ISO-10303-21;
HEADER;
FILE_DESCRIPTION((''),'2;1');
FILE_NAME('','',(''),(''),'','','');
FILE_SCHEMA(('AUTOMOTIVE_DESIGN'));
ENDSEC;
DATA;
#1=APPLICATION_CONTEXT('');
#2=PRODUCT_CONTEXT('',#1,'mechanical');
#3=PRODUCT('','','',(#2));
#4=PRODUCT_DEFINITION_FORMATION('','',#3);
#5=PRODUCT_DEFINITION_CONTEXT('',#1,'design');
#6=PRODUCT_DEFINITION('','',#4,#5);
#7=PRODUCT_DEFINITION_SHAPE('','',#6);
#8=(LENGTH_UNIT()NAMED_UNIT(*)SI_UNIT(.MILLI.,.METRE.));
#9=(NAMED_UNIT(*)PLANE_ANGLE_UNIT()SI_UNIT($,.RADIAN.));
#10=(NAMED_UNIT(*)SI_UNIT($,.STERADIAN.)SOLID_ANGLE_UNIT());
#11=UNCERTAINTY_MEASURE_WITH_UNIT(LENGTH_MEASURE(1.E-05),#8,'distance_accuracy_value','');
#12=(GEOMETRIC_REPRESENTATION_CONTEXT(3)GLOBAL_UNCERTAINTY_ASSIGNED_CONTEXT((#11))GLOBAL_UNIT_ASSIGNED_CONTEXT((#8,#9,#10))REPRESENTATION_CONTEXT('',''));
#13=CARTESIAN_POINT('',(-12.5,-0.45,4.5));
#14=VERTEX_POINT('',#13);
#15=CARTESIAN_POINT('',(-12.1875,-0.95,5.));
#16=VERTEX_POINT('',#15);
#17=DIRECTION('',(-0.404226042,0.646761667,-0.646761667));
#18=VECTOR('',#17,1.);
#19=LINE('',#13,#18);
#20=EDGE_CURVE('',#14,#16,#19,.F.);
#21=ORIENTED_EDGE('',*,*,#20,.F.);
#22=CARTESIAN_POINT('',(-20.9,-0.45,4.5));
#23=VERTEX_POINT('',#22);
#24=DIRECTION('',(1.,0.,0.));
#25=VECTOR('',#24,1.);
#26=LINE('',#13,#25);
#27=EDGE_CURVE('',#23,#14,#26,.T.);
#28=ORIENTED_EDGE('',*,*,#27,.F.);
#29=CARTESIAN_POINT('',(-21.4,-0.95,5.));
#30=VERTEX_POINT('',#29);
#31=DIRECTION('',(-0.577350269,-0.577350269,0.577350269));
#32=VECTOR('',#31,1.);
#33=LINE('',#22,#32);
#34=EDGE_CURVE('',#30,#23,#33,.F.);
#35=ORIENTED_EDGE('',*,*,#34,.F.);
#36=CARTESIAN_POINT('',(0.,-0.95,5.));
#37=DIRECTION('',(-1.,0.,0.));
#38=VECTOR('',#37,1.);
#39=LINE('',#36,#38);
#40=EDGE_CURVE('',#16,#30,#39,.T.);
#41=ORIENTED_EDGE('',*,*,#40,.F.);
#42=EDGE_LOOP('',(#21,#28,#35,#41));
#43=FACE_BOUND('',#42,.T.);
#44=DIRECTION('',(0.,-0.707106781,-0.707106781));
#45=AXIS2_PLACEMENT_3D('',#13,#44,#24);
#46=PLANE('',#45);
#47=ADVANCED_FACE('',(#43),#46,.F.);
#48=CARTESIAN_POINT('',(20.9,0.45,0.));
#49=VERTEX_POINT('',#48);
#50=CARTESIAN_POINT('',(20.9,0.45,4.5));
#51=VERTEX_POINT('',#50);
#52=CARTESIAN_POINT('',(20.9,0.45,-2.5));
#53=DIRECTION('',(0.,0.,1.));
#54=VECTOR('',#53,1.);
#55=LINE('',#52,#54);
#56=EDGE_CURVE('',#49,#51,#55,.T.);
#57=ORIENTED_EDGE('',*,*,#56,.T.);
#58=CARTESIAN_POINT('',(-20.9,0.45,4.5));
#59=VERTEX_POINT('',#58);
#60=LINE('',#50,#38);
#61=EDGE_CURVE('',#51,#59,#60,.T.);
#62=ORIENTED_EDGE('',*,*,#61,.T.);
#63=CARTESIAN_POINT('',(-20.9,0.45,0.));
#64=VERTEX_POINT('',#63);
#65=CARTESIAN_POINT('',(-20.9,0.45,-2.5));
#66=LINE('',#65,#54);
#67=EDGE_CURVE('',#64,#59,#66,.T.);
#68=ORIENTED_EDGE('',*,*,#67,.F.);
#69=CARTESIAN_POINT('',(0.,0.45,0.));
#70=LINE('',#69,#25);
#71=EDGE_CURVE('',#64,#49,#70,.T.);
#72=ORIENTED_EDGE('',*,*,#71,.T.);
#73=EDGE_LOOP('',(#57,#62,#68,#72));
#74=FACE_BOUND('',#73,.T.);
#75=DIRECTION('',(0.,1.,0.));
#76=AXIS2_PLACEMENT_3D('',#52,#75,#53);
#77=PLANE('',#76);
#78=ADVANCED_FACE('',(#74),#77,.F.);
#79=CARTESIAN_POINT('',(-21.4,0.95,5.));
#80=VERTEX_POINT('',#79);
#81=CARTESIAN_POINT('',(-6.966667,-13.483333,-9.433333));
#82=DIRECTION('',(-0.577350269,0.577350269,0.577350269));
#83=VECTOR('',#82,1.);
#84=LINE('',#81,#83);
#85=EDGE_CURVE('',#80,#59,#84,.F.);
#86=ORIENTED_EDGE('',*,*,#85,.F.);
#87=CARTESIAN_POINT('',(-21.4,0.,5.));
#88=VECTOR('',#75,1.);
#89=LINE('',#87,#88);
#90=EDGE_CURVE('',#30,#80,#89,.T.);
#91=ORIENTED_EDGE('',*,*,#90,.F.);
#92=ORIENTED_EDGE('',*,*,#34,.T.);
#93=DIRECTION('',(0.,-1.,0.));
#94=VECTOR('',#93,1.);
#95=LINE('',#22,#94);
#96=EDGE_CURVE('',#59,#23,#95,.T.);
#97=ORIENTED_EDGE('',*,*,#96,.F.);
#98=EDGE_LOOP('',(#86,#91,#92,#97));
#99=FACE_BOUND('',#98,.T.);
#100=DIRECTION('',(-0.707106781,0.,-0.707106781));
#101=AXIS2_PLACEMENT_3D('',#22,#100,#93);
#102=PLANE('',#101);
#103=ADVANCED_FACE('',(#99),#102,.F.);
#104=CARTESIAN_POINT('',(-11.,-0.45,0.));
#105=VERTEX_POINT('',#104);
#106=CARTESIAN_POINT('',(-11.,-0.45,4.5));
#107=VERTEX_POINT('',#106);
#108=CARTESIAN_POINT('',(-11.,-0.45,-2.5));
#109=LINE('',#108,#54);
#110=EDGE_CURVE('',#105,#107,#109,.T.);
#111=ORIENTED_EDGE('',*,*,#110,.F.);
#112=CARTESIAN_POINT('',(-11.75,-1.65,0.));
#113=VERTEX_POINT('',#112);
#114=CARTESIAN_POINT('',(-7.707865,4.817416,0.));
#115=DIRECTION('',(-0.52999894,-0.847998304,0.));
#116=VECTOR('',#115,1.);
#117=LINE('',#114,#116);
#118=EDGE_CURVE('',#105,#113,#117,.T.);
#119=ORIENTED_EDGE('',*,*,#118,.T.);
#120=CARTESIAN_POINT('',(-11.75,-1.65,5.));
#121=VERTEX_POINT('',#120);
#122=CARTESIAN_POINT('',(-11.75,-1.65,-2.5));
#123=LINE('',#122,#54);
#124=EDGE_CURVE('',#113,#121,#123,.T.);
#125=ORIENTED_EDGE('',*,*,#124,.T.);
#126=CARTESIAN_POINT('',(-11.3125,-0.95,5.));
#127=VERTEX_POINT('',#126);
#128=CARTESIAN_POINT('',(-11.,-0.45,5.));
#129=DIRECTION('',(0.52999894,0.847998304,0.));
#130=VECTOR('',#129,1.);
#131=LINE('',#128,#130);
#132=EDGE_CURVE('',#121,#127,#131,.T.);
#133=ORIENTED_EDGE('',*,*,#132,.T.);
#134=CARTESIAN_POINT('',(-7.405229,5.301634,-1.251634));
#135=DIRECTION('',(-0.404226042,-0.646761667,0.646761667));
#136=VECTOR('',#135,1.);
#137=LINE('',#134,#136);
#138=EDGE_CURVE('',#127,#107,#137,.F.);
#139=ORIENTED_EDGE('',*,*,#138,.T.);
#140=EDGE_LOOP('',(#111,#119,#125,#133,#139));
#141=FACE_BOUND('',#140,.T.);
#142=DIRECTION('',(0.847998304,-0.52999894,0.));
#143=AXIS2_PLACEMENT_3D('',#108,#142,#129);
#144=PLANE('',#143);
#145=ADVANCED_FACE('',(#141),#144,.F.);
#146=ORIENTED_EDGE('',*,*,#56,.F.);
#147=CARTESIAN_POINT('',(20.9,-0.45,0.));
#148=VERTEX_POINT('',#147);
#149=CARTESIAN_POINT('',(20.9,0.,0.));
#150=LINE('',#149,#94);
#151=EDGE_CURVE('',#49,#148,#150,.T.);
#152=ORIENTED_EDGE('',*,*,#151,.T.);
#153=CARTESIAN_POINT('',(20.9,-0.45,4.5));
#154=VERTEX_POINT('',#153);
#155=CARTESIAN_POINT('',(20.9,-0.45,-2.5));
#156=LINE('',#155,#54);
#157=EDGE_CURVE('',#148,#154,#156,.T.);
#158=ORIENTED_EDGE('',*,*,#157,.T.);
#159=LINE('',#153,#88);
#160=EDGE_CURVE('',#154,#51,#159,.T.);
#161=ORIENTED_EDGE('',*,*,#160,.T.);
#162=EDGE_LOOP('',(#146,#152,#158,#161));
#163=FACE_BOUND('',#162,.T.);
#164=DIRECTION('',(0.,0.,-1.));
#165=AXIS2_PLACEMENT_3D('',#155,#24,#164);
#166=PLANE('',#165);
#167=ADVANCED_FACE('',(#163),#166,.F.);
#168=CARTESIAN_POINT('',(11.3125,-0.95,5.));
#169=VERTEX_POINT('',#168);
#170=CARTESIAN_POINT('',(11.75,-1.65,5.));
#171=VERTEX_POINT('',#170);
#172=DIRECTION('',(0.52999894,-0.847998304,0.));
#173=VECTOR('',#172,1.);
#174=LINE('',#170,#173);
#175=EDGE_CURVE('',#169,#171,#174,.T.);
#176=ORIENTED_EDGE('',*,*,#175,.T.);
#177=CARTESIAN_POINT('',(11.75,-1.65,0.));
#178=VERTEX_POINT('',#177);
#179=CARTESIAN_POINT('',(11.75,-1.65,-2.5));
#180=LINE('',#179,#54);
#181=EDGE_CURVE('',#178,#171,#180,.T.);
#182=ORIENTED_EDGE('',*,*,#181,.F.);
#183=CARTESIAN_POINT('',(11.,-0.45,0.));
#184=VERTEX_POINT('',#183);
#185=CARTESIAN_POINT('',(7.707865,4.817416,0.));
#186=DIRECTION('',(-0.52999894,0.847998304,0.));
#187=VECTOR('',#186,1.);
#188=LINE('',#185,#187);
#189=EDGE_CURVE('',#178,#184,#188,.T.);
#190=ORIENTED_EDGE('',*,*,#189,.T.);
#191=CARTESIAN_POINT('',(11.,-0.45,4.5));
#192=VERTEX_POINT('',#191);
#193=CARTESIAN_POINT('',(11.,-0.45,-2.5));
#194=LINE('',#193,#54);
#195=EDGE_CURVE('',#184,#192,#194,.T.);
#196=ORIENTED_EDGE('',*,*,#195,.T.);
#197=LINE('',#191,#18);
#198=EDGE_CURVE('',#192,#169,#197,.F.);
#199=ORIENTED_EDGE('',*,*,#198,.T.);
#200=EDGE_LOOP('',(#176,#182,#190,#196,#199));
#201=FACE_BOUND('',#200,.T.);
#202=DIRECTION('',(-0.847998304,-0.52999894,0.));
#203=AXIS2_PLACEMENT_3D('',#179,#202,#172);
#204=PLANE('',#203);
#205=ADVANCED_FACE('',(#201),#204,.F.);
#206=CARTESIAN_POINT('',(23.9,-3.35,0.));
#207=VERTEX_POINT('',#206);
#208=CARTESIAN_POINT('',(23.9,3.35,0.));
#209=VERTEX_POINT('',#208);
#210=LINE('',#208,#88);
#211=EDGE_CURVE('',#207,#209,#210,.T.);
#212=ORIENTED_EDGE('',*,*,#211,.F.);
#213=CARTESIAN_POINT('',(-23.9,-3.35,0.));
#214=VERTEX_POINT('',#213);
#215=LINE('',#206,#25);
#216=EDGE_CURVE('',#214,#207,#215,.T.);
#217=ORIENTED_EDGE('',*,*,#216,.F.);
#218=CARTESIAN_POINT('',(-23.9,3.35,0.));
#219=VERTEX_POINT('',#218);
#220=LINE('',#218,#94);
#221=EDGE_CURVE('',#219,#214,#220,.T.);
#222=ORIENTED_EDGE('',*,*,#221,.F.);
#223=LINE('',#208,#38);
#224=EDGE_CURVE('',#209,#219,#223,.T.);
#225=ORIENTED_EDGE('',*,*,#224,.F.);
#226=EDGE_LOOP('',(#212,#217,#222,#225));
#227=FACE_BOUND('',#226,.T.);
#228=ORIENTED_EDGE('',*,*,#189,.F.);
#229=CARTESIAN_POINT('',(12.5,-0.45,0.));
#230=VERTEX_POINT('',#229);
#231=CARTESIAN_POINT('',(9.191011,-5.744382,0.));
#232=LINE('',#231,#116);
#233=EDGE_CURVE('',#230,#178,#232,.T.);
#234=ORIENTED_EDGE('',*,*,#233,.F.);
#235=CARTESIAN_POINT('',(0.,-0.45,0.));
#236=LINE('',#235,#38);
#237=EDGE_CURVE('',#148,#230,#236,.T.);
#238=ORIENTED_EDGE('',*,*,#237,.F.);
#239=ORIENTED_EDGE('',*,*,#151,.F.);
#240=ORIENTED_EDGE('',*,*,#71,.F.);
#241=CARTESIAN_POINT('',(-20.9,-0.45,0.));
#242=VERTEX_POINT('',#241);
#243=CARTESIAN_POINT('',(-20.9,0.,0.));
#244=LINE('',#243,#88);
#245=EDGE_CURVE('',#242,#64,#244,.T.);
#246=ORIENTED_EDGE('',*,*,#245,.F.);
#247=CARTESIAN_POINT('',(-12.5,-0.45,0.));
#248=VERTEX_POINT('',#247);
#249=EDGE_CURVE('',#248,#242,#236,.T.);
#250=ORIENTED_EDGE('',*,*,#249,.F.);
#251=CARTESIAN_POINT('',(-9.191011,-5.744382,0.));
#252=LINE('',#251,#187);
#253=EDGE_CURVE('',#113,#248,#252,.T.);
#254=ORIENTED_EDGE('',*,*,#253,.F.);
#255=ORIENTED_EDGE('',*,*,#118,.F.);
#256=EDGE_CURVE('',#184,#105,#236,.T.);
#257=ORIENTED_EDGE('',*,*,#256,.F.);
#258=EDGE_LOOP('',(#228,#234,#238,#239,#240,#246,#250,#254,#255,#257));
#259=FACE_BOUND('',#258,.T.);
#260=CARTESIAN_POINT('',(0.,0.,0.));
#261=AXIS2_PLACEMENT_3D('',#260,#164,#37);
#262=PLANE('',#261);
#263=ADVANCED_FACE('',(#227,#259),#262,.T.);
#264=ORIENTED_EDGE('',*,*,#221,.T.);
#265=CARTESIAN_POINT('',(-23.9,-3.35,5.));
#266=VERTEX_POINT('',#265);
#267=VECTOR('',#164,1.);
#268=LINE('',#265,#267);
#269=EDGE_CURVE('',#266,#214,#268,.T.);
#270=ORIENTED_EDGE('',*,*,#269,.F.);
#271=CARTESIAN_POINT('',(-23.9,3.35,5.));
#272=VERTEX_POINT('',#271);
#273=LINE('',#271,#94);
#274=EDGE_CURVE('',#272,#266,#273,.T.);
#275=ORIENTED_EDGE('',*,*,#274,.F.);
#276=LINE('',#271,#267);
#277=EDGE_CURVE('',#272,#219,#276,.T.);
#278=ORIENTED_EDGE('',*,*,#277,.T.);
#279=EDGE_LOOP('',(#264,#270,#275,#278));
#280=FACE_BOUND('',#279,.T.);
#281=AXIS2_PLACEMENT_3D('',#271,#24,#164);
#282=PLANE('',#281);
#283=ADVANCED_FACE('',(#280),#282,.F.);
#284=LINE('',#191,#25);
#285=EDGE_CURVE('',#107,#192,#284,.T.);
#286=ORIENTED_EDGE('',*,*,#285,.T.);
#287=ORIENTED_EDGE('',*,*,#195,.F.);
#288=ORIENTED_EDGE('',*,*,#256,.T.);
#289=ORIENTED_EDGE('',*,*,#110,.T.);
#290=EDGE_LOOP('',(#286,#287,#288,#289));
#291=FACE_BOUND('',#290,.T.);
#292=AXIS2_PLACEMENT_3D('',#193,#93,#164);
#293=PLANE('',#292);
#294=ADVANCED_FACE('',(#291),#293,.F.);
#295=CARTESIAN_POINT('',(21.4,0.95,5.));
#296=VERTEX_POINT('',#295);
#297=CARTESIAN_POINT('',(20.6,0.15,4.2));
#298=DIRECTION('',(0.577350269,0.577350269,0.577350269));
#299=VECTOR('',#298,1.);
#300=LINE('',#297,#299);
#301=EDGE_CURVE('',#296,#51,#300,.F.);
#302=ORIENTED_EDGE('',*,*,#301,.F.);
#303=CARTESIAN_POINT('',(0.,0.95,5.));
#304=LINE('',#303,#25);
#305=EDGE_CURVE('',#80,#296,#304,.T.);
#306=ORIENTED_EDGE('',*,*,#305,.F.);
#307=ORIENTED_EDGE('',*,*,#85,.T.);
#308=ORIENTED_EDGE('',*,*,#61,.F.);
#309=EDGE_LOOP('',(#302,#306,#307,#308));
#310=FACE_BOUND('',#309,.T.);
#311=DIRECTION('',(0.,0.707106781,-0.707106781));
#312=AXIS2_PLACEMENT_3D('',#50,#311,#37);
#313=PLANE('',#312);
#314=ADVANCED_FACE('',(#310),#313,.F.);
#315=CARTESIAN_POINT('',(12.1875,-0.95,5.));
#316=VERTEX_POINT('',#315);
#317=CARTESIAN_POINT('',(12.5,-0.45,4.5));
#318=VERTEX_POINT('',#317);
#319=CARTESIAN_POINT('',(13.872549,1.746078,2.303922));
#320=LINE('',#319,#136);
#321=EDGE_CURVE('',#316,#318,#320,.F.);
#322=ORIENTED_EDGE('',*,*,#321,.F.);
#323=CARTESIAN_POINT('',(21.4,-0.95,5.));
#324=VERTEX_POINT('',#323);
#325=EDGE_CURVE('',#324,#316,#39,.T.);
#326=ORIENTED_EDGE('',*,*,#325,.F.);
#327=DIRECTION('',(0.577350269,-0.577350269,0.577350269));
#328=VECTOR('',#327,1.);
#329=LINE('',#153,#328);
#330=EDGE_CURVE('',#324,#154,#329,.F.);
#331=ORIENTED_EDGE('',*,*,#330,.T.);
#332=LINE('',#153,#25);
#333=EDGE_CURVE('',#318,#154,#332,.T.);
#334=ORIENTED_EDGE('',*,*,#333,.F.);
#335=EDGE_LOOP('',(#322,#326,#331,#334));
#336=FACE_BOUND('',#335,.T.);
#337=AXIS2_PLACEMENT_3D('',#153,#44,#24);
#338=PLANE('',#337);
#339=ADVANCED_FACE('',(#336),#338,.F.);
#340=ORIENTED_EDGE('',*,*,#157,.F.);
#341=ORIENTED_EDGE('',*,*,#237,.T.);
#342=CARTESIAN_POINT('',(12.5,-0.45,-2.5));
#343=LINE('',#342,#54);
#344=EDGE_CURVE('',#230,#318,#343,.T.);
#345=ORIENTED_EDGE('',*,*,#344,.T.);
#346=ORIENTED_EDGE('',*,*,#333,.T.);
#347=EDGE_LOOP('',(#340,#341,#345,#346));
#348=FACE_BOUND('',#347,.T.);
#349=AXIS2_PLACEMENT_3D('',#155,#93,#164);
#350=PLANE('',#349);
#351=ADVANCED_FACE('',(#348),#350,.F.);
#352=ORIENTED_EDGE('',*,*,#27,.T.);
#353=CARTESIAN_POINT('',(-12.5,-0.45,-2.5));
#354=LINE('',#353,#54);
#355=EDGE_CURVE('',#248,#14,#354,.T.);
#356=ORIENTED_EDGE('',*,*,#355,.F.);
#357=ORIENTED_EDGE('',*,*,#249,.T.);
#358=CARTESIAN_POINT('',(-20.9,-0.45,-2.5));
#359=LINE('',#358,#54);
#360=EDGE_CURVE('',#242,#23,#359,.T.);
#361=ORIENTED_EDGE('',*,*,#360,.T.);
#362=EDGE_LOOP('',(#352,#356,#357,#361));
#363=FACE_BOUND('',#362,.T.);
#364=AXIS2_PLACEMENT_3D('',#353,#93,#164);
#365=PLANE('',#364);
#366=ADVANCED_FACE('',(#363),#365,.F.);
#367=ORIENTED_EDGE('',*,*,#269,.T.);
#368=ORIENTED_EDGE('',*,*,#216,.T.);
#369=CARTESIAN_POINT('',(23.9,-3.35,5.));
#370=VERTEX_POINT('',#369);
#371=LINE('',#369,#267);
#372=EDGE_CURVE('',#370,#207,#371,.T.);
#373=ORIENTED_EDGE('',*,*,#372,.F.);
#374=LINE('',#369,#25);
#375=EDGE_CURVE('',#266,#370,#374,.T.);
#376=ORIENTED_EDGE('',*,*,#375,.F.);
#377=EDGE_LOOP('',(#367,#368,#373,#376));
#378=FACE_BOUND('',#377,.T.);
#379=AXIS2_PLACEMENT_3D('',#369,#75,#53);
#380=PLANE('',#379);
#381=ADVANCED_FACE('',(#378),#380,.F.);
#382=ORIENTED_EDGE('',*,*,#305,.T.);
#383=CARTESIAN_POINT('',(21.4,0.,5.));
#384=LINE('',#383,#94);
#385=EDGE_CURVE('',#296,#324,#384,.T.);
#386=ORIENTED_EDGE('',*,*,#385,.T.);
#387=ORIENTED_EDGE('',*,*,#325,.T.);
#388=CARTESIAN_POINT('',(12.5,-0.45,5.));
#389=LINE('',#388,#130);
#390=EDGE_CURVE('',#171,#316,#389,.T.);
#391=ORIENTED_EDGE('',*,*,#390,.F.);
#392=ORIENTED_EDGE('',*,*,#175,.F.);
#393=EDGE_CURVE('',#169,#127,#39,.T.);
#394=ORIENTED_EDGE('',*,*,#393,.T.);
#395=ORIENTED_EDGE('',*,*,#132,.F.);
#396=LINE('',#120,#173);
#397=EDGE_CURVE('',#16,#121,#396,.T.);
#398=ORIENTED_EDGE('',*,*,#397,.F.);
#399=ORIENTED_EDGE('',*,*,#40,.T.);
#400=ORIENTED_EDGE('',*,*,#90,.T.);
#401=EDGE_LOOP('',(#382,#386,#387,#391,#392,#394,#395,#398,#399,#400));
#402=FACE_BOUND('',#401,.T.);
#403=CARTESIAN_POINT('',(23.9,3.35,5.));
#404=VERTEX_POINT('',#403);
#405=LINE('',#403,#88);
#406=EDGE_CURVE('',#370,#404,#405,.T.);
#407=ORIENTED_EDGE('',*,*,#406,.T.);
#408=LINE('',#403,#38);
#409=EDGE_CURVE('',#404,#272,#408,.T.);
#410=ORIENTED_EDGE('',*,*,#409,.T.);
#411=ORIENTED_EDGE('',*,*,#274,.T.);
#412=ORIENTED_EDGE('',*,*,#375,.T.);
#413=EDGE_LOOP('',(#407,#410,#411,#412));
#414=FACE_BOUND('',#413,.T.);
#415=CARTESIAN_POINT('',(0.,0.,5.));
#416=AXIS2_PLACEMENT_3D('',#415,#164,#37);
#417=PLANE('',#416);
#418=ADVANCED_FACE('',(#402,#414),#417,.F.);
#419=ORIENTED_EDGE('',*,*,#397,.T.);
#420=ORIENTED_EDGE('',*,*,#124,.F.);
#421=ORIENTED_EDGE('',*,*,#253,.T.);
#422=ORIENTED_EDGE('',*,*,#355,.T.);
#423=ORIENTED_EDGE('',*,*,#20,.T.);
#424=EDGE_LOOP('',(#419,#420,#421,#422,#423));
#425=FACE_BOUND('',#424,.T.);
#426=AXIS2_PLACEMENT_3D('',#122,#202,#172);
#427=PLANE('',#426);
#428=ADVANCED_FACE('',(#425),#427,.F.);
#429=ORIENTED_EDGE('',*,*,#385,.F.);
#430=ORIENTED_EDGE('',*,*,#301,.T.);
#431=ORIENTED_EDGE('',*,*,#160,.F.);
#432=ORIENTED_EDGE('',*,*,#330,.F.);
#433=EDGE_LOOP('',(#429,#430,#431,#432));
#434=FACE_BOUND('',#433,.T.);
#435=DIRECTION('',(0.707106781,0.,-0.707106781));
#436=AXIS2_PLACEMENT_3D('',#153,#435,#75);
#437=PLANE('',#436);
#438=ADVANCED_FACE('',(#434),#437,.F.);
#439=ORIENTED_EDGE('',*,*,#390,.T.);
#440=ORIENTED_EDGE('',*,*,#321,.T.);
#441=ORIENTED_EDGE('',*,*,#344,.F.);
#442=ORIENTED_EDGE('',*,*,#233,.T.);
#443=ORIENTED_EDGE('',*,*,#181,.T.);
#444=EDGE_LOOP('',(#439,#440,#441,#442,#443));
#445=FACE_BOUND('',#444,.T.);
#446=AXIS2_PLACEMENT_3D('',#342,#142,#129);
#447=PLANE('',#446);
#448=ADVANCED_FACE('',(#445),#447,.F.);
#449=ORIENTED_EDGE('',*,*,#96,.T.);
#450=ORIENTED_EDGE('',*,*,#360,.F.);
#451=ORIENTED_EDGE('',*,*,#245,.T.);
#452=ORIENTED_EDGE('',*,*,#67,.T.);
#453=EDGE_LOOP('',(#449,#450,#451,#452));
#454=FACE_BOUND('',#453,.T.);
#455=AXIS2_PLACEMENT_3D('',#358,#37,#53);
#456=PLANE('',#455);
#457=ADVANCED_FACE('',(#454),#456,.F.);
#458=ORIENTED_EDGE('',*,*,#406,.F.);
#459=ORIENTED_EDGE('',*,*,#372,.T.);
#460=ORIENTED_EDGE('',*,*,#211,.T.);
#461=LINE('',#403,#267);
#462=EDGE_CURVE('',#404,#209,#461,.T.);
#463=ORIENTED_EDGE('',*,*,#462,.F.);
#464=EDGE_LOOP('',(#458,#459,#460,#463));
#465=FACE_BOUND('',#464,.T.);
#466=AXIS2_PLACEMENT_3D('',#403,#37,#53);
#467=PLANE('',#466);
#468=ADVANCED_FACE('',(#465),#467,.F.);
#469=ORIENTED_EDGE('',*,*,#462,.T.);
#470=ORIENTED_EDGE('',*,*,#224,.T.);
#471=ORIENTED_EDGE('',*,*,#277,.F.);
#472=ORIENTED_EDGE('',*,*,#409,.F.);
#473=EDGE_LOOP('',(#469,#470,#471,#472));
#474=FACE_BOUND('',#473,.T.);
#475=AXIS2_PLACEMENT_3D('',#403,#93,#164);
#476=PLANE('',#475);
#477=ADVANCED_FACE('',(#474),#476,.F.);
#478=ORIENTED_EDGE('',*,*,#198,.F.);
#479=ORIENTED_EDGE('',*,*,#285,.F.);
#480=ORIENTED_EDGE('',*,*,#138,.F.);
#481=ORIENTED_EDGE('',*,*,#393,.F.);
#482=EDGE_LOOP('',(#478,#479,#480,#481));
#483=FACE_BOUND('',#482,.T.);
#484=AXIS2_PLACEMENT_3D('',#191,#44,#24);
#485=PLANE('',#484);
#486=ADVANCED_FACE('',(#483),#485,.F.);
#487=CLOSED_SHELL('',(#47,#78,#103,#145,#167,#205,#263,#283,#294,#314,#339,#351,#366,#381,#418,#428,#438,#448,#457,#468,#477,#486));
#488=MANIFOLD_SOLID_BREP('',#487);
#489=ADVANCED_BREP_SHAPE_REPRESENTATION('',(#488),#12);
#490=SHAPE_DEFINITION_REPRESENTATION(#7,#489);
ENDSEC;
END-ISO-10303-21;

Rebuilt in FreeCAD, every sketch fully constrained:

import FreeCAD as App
import Part
import Sketcher

V = App.Vector
Q = App.Units.Quantity


def edges_at(feature, points):
    """Names of the edges that pass closest to the given points."""
    edges = feature.Shape.Edges
    near = lambda p: min(range(len(edges)), key=lambda i: edges[i].distToShape(Part.Vertex(*p))[0])
    return sorted({f"Edge{near(p) + 1}" for p in points})


def add_polygon(sketch, points):
    """Adds a closed chain of lines whose ends are joined by coincident constraints."""
    first, n = sketch.GeometryCount, len(points)
    for a, b in zip(points, points[1:] + points[:1]):
        sketch.addGeometry(Part.LineSegment(App.Vector(*a, 0), App.Vector(*b, 0)), False)
    for i in range(n):
        sketch.addConstraint(Sketcher.Constraint("Coincident", first + i, 2, first + (i + 1) % n, 1))

doc = App.newDocument("Part")
body = doc.addObject("PartDesign::Body", "Body")

# Sketch on XY plane
sketch1 = body.newObject("Sketcher::SketchObject", "Sketch")
sketch1.AttachmentSupport = (doc.getObject("XY_Plane"), [""])
sketch1.MapMode = "FlatFace"
add_polygon(sketch1, [(23.9, -3.35), (23.9, 3.35), (-23.9, 3.35), (-23.9, -3.35)])  # lines 0-3
sketch1.addConstraint([
    Sketcher.Constraint("Vertical", 0),
    Sketcher.Constraint("Horizontal", 1),
    Sketcher.Constraint("Vertical", 2),
    Sketcher.Constraint("Horizontal", 3),
    Sketcher.Constraint("Symmetric", 0, 2, 2, 2, -1, 1),
    Sketcher.Constraint("DistanceX", 1, 2, 1, 1, Q("47.8 mm")),
    Sketcher.Constraint("DistanceY", 0, 1, 0, 2, Q("6.7 mm")),
])
pad1 = body.newObject("PartDesign::Pad", "Pad")
pad1.Profile = sketch1
pad1.Length = 5

# Sketch on XY plane
sketch2 = body.newObject("Sketcher::SketchObject", "Sketch001")
sketch2.AttachmentSupport = (doc.getObject("XY_Plane"), [""])
sketch2.MapMode = "FlatFace"
sketch2.AttachmentOffset = App.Placement(V(0, 0, 5), App.Rotation())
add_polygon(sketch2, [(12.5, -0.45), (20.9, -0.45), (20.9, 0.45), (-20.9, 0.45), (-20.9, -0.45), (-12.5, -0.45), (-11.75, -1.65), (-11, -0.45), (11, -0.45), (11.75, -1.65)])  # lines 0-9
sketch2.addConstraint([
    Sketcher.Constraint("Horizontal", 0),
    Sketcher.Constraint("Vertical", 1),
    Sketcher.Constraint("Horizontal", 2),
    Sketcher.Constraint("Vertical", 3),
    Sketcher.Constraint("Horizontal", 4),
    Sketcher.Constraint("Horizontal", 7),
    Sketcher.Constraint("Symmetric", 0, 2, 2, 2, -1, 1),
    Sketcher.Constraint("Symmetric", 5, 2, 8, 2, -2),
    Sketcher.Constraint("Symmetric", 4, 2, 9, 2, -2),
    Sketcher.Constraint("Parallel", 5, 8),
    Sketcher.Constraint("Parallel", 6, 9),
    Sketcher.Constraint("Horizontal", 4, 2, 6, 2),
    Sketcher.Constraint("DistanceX", 7, 1, 7, 2, Q("22 mm")),
    Sketcher.Constraint("DistanceX", 0, 1, 0, 2, Q("8.4 mm")),
    Sketcher.Constraint("DistanceX", 2, 2, 2, 1, Q("41.8 mm")),
    Sketcher.Constraint("DistanceY", 1, 1, 1, 2, Q("0.9 mm")),
    Sketcher.Constraint("DistanceY", 5, 2, 4, 2, Q("1.2 mm")),
])
pocket1 = body.newObject("PartDesign::Pocket", "Pocket")
pocket1.Profile = sketch2
pocket1.Length = 7.5
doc.recompute()

chamfer = body.newObject("PartDesign::Chamfer", "Chamfer")
chamfer.Base = (pocket1, edges_at(pocket1, [
    (16.7, -0.45, 5),
    (20.9, 0, 5),
    (0, 0.45, 5),
    (-20.9, 0, 5),
    (-16.7, -0.45, 5),
    (0, -0.45, 5),
]))
chamfer.Size = 0.5

doc.recompute()
